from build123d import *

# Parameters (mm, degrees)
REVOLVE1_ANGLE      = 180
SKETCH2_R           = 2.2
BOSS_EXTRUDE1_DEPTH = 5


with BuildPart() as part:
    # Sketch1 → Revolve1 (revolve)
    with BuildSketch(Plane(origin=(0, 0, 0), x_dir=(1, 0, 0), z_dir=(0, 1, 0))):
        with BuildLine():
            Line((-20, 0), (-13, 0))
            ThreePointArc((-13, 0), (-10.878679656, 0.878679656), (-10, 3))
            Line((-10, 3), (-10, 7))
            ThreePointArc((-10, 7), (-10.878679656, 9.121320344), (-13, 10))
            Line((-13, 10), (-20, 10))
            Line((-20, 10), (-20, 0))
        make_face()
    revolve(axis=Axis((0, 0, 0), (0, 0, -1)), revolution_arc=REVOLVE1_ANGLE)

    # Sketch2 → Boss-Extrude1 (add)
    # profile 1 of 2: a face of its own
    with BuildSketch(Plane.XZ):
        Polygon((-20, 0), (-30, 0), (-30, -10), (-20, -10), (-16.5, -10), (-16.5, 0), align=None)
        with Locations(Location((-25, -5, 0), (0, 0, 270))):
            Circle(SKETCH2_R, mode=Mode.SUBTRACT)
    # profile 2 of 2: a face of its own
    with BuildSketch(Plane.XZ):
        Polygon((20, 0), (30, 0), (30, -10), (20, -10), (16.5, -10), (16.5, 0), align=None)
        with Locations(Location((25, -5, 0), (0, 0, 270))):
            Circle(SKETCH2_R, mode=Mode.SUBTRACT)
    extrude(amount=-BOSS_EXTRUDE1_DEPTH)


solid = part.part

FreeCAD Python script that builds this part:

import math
import FreeCAD as App
import Part
import Sketcher
from FreeCAD import Vector

doc = App.newDocument("Part")
body = doc.addObject("PartDesign::Body", "Body")

sketch1 = body.newObject("Sketcher::SketchObject", "Sketch")
sketch1.AttachmentSupport = (doc.getObject("XZ_Plane"), [""])
sketch1.MapMode = "FlatFace"
sketch1.addGeometry([
    Part.LineSegment(Vector(-20, 0, 0), Vector(-13, 0, 0)),
    Part.ArcOfCircle(Part.Circle(Vector(-13, -3, 0), Vector(0, 0, 1), 3), math.radians(0), math.radians(90)),
    Part.LineSegment(Vector(-10, -3, 0), Vector(-10, -7, 0)),
    Part.ArcOfCircle(Part.Circle(Vector(-13, -7, 0), Vector(0, 0, 1), 3), math.radians(-90), math.radians(0)),
    Part.LineSegment(Vector(-13, -10, 0), Vector(-20, -10, 0)),
    Part.LineSegment(Vector(-20, -10, 0), Vector(-20, 0, 0)),
], False)
sketch1.addConstraint([
    Sketcher.Constraint("Tangent", 0, 2, 1, 2),
    Sketcher.Constraint("Tangent", 1, 1, 2, 1),
    Sketcher.Constraint("Tangent", 2, 2, 3, 2),
    Sketcher.Constraint("Tangent", 3, 1, 4, 1),
    Sketcher.Constraint("Coincident", 4, 2, 5, 1),
    Sketcher.Constraint("Coincident", 5, 2, 0, 1),
    Sketcher.Constraint("Horizontal", 0),
    Sketcher.Constraint("Vertical", 2),
    Sketcher.Constraint("Horizontal", 4),
    Sketcher.Constraint("Vertical", 5),
    Sketcher.Constraint("Equal", 1, 3),
    Sketcher.Constraint("PointOnObject", 0, 2, -1),
    Sketcher.Constraint("Radius", 1, 3.0),
    Sketcher.Constraint("DistanceX", 0, 1, 0, 2, 7.0),
    Sketcher.Constraint("DistanceY", 2, 2, 2, 1, 4.0),
    Sketcher.Constraint("DistanceX", 1, 3, -1, 1, 13.0),
])
revolution = body.newObject("PartDesign::Revolution", "Revolution")
revolution.Profile = sketch1
revolution.ReferenceAxis = (sketch1, ["V_Axis"])
revolution.Angle = 180
revolution.Reversed = True

sketch2 = body.newObject("Sketcher::SketchObject", "Sketch001")
sketch2.AttachmentSupport = (doc.getObject("XZ_Plane"), [""])
sketch2.MapMode = "FlatFace"
sketch2.addGeometry([
    Part.LineSegment(Vector(-30, 0, 0), Vector(-30, -10, 0)),
    Part.LineSegment(Vector(-30, -10, 0), Vector(-16.5, -10, 0)),
    Part.LineSegment(Vector(-16.5, -10, 0), Vector(-16.5, 0, 0)),
    Part.LineSegment(Vector(-16.5, 0, 0), Vector(-30, 0, 0)),
    Part.Circle(Vector(-25, -5, 0), Vector(0, 0, 1), 2.2),
    Part.LineSegment(Vector(30, 0, 0), Vector(16.5, 0, 0)),
    Part.LineSegment(Vector(16.5, 0, 0), Vector(16.5, -10, 0)),
    Part.LineSegment(Vector(16.5, -10, 0), Vector(30, -10, 0)),
    Part.LineSegment(Vector(30, -10, 0), Vector(30, 0, 0)),
    Part.Circle(Vector(25, -5, 0), Vector(0, 0, 1), 2.2),
], False)
sketch2.addConstraint([
    Sketcher.Constraint("Coincident", 0, 2, 1, 1),
    Sketcher.Constraint("Coincident", 1, 2, 2, 1),
    Sketcher.Constraint("Coincident", 2, 2, 3, 1),
    Sketcher.Constraint("Coincident", 3, 2, 0, 1),
    Sketcher.Constraint("Coincident", 5, 2, 6, 1),
    Sketcher.Constraint("Coincident", 6, 2, 7, 1),
    Sketcher.Constraint("Coincident", 7, 2, 8, 1),
    Sketcher.Constraint("Coincident", 8, 2, 5, 1),
    Sketcher.Constraint("Vertical", 0),
    Sketcher.Constraint("Horizontal", 1),
    Sketcher.Constraint("Vertical", 2),
    Sketcher.Constraint("Horizontal", 3),
    Sketcher.Constraint("Horizontal", 5),
    Sketcher.Constraint("Vertical", 6),
    Sketcher.Constraint("Horizontal", 7),
    Sketcher.Constraint("Vertical", 8),
    Sketcher.Constraint("Equal", 4, 9),
    Sketcher.Constraint("Symmetric", 2, 2, 5, 2, -1, 1),
    Sketcher.Constraint("Symmetric", 4, 3, 9, 3, -2),
    Sketcher.Constraint("Symmetric", 0, 2, 7, 2, -2),
    Sketcher.Constraint("PointOnObject", 2, 2, -1),
    Sketcher.Constraint("Diameter", 4, 4.4),
    Sketcher.Constraint("DistanceY", 0, 2, 0, 1, 10.0),
    Sketcher.Constraint("DistanceX", 1, 1, 1, 2, 13.5),
    Sketcher.Constraint("DistanceX", 4, 3, -1, 1, 25.0),
    Sketcher.Constraint("DistanceY", 4, 3, -1, 1, 5.0),
    Sketcher.Constraint("DistanceX", 0, 2, -1, 1, 30.0),
])
pad1 = body.newObject("PartDesign::Pad", "Pad")
pad1.Profile = sketch2
pad1.Length = 5
pad1.Reversed = True

doc.recompute()
